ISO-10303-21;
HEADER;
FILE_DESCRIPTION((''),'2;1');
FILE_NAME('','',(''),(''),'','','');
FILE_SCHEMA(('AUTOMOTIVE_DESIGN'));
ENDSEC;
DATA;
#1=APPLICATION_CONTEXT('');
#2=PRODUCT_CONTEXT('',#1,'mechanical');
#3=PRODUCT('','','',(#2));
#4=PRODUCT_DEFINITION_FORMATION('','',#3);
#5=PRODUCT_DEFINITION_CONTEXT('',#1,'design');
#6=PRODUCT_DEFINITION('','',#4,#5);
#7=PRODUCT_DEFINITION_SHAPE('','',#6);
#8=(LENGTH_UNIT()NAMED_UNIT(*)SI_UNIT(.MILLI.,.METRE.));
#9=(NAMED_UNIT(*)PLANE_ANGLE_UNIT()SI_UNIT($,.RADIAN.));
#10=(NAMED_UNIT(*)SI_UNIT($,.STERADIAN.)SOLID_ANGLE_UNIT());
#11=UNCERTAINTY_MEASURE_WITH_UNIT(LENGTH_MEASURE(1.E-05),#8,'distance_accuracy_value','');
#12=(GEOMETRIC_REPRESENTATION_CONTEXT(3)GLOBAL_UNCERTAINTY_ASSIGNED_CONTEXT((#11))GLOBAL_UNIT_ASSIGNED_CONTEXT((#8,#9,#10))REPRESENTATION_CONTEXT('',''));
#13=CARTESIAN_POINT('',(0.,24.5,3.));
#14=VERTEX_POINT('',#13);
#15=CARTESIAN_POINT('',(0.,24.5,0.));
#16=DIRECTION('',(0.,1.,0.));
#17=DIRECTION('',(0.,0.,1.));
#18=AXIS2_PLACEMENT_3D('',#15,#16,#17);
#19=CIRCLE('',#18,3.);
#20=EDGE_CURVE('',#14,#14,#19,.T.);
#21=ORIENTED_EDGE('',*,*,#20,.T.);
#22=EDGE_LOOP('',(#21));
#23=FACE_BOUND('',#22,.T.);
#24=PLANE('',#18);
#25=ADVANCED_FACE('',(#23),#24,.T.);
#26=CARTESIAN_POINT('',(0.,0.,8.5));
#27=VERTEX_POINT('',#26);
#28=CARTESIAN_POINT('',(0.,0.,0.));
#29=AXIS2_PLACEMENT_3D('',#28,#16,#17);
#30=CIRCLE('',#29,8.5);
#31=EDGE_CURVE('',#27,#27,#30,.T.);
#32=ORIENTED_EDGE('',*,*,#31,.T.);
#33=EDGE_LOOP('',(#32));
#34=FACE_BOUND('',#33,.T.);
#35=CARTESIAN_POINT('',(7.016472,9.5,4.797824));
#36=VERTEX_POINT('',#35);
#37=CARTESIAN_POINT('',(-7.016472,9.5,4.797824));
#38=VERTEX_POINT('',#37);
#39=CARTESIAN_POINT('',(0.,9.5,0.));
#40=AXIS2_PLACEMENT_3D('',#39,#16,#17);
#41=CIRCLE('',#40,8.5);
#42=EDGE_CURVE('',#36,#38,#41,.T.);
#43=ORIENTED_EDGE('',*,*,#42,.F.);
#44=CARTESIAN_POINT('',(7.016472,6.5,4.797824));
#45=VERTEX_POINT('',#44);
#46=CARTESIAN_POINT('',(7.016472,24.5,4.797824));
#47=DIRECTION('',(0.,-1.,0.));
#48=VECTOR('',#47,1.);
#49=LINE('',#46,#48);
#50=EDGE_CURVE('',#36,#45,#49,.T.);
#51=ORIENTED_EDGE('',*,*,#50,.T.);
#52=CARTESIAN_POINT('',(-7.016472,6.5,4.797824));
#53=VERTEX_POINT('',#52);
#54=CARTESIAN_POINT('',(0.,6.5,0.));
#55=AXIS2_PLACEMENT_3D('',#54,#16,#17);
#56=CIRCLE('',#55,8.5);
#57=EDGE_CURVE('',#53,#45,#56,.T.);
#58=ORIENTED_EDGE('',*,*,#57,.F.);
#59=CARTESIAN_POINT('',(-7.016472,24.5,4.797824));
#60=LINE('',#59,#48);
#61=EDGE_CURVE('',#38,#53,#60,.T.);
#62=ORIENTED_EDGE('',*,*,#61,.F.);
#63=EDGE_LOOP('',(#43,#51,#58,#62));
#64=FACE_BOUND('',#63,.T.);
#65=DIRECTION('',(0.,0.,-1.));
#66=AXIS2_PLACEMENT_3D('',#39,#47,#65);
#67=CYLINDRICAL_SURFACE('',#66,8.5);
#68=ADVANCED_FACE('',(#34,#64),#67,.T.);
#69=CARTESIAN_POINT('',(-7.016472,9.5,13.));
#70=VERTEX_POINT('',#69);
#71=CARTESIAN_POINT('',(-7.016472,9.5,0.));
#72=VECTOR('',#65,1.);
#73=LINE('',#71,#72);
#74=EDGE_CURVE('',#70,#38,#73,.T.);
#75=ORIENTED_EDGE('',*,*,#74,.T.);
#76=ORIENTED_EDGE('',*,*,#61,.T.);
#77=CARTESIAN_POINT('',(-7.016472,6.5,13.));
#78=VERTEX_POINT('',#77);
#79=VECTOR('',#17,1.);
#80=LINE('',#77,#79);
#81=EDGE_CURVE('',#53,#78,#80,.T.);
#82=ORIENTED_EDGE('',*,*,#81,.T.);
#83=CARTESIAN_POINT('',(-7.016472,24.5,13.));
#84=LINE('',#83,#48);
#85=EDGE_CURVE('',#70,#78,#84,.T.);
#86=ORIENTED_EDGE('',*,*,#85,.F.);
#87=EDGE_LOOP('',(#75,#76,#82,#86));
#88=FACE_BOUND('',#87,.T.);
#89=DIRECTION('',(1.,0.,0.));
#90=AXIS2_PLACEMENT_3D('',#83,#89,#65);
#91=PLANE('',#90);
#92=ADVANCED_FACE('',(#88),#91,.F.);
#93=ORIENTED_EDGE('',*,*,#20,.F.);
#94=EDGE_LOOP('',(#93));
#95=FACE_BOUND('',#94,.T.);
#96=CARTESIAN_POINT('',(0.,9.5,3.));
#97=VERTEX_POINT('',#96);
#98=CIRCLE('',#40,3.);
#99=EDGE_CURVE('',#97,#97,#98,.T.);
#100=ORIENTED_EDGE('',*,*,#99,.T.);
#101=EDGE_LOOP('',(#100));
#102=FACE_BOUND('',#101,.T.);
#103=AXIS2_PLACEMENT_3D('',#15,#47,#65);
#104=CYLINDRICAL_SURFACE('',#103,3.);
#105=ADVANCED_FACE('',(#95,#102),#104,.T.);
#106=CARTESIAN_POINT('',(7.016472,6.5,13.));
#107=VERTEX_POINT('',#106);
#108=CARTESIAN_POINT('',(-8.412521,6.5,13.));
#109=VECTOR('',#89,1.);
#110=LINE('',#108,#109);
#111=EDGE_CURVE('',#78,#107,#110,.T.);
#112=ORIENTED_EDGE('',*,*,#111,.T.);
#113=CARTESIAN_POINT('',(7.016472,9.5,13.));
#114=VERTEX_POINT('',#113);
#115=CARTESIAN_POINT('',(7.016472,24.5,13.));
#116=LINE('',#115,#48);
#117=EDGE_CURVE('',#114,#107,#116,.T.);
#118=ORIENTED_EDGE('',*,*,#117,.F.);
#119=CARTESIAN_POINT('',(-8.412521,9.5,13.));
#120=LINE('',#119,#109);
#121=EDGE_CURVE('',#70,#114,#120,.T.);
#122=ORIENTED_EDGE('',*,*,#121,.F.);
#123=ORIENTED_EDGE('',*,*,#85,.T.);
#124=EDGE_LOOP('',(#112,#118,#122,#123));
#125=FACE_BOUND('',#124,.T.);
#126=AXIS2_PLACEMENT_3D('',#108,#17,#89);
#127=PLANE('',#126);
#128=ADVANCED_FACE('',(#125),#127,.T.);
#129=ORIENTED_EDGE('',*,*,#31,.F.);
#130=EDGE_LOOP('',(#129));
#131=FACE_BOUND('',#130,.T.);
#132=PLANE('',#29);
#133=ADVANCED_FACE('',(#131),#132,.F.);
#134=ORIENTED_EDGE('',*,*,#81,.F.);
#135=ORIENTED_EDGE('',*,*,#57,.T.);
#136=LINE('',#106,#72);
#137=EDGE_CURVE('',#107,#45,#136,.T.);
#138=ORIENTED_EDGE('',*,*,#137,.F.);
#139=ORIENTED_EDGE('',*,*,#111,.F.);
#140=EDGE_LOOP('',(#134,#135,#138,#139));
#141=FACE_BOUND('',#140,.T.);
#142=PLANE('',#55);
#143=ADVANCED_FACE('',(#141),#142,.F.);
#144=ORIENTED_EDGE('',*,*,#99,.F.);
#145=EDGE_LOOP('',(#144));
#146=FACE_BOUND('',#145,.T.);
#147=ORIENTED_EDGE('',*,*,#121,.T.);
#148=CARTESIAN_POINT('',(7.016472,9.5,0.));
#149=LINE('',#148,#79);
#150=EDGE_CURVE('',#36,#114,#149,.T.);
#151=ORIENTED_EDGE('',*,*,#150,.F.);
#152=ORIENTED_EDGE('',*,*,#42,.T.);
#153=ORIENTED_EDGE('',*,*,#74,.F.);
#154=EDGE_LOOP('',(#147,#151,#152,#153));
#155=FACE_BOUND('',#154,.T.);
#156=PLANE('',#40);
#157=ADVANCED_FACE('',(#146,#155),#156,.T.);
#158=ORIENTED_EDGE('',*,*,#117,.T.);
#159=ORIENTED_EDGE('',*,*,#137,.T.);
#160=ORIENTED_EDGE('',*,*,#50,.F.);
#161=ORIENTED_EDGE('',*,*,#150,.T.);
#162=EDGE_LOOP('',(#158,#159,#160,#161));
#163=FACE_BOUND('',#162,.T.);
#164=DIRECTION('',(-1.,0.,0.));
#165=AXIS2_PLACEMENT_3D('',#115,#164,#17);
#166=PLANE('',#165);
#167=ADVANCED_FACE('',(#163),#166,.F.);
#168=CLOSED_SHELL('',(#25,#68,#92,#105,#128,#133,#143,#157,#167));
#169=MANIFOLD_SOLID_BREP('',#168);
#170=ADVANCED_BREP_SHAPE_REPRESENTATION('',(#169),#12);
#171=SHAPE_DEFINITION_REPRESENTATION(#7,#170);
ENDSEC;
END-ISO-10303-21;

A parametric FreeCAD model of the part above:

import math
import FreeCAD as App
import Part
import Sketcher

V = App.Vector
Q = App.Units.Quantity

doc = App.newDocument("Part")
body = doc.addObject("PartDesign::Body", "Body")

# Sketch on XZ plane
sketch1 = body.newObject("Sketcher::SketchObject", "Sketch")
sketch1.AttachmentSupport = (doc.getObject("XZ_Plane"), [""])
sketch1.MapMode = "FlatFace"
sketch1.addGeometry(Part.Circle(V(0, 0, 0), V(0, 0, 1), 8), False)
sketch1.addConstraint([
    Sketcher.Constraint("Coincident", 0, 3, -1, 1),
    Sketcher.Constraint("Diameter", 0, Q("17 mm")),
])
pad1 = body.newObject("PartDesign::Pad", "Pad")
pad1.Profile = sketch1
pad1.Length = 9.5
pad1.Reversed = True

# Sketch on XZ plane
sketch2 = body.newObject("Sketcher::SketchObject", "Sketch001")
sketch2.AttachmentSupport = (doc.getObject("XZ_Plane"), [""])
sketch2.MapMode = "FlatFace"
sketch2.AttachmentOffset = App.Placement(V(0, 0, -9.5), App.Rotation())
sketch2.addGeometry(Part.Circle(V(0, 0, 0), V(0, 0, 1), 3), False)
sketch2.addConstraint([
    Sketcher.Constraint("Coincident", 0, 3, -1, 1),
    Sketcher.Constraint("Diameter", 0, Q("6 mm")),
])
pad2 = body.newObject("PartDesign::Pad", "Pad001")
pad2.Profile = sketch2
pad2.Length = 15
pad2.Reversed = True

# Sketch on XZ plane
sketch3 = body.newObject("Sketcher::SketchObject", "Sketch002")
sketch3.AttachmentSupport = (doc.getObject("XZ_Plane"), [""])
sketch3.MapMode = "FlatFace"
sketch3.AttachmentOffset = App.Placement(V(0, 0, -9.5), App.Rotation())
sketch3.addGeometry([
    Part.LineSegment(V(-8, 0, 0), V(-8, 13, 0)),
    Part.LineSegment(V(-8, 13, 0), V(8, 13, 0)),
    Part.LineSegment(V(8, 13, 0), V(8, 0, 0)),
    Part.LineSegment(V(8, 0, 0), V(-8, 0, 0)),
], False)
sketch3.addConstraint([
    Sketcher.Constraint("Coincident", 0, 2, 1, 1),
    Sketcher.Constraint("Coincident", 1, 2, 2, 1),
    Sketcher.Constraint("Coincident", 2, 2, 3, 1),
    Sketcher.Constraint("Coincident", 3, 2, 0, 1),
    Sketcher.Constraint("Vertical", 0),
    Sketcher.Constraint("Horizontal", 1),
    Sketcher.Constraint("Vertical", 2),
    Sketcher.Constraint("Horizontal", 3),
    Sketcher.Constraint("PointOnObject", 2, 2, -1),
    Sketcher.Constraint("DistanceY", 0, 1, 0, 2, Q("13 mm")),
    Sketcher.Constraint("DistanceX", -1, 1, 1, 2, Q("8.5 mm")),
    Sketcher.Constraint("DistanceX", 1, 1, 1, 2, Q("16.912521 mm")),
])
pad3 = body.newObject("PartDesign::Pad", "Pad002")
pad3.Profile = sketch3
pad3.Length = 3

# Sketch on XZ plane
sketch4 = body.newObject("Sketcher::SketchObject", "Sketch003")
sketch4.AttachmentSupport = (doc.getObject("XZ_Plane"), [""])
sketch4.MapMode = "FlatFace"
sketch4.AttachmentOffset = App.Placement(V(0, 0, -6.5), App.Rotation())
sketch4.addGeometry([
    Part.LineSegment(V(-7, 4.8, 0), V(-7, 13, 0)),  # 0
    Part.LineSegment(V(-7, 13, 0), V(-8.4, 13, 0)),  # 1
    Part.LineSegment(V(-8.4, 13, 0), V(-8.4, 1.2, 0)),  # 2
    Part.ArcOfCircle(Part.Circle(V(0, 0, 0), V(0, 0, 1), 8.5), math.radians(146), math.radians(172)),  # 3
    Part.LineSegment(V(7, 13, 0), V(7, 4.8, 0)),  # 4
    Part.ArcOfCircle(Part.Circle(V(0, 0, 0), V(0, 0, 1), 8.5), math.radians(0), math.radians(34)),  # 5
    Part.LineSegment(V(8.5, 0, 0), V(8.5, 13, 0)),  # 6
    Part.LineSegment(V(8.5, 13, 0), V(7, 13, 0)),  # 7
], False)
sketch4.addConstraint([
    Sketcher.Constraint("Coincident", 0, 2, 1, 1),
    Sketcher.Constraint("Coincident", 1, 2, 2, 1),
    Sketcher.Constraint("Coincident", 2, 2, 3, 2),
    Sketcher.Constraint("Coincident", 3, 1, 0, 1),
    Sketcher.Constraint("Coincident", 4, 2, 5, 2),
    Sketcher.Constraint("Tangent", 5, 1, 6, 1),
    Sketcher.Constraint("Coincident", 6, 2, 7, 1),
    Sketcher.Constraint("Coincident", 7, 2, 4, 1),
    Sketcher.Constraint("Vertical", 0),
    Sketcher.Constraint("Horizontal", 1),
    Sketcher.Constraint("Vertical", 2),
    Sketcher.Constraint("Vertical", 4),
    Sketcher.Constraint("Vertical", 6),
    Sketcher.Constraint("Horizontal", 7),
    Sketcher.Constraint("Coincident", 3, 3, -1, 1),
    Sketcher.Constraint("Coincident", 5, 3, -1, 1),
    Sketcher.Constraint("Equal", 3, 5),
    Sketcher.Constraint("Symmetric", 0, 2, 7, 2, -2),
    Sketcher.Constraint("Radius", 3, Q("8.5 mm")),
    Sketcher.Constraint("DistanceY", 6, 1, 6, 2, Q("13 mm")),
    Sketcher.Constraint("DistanceX", 1, 2, 1, 1, Q("1.396048 mm")),
    Sketcher.Constraint("DistanceX", 7, 2, 7, 1, Q("1.483528 mm")),
])
pocket1 = body.newObject("PartDesign::Pocket", "Pocket")
pocket1.Profile = sketch4
pocket1.Type = "ThroughAll"

doc.recompute()
